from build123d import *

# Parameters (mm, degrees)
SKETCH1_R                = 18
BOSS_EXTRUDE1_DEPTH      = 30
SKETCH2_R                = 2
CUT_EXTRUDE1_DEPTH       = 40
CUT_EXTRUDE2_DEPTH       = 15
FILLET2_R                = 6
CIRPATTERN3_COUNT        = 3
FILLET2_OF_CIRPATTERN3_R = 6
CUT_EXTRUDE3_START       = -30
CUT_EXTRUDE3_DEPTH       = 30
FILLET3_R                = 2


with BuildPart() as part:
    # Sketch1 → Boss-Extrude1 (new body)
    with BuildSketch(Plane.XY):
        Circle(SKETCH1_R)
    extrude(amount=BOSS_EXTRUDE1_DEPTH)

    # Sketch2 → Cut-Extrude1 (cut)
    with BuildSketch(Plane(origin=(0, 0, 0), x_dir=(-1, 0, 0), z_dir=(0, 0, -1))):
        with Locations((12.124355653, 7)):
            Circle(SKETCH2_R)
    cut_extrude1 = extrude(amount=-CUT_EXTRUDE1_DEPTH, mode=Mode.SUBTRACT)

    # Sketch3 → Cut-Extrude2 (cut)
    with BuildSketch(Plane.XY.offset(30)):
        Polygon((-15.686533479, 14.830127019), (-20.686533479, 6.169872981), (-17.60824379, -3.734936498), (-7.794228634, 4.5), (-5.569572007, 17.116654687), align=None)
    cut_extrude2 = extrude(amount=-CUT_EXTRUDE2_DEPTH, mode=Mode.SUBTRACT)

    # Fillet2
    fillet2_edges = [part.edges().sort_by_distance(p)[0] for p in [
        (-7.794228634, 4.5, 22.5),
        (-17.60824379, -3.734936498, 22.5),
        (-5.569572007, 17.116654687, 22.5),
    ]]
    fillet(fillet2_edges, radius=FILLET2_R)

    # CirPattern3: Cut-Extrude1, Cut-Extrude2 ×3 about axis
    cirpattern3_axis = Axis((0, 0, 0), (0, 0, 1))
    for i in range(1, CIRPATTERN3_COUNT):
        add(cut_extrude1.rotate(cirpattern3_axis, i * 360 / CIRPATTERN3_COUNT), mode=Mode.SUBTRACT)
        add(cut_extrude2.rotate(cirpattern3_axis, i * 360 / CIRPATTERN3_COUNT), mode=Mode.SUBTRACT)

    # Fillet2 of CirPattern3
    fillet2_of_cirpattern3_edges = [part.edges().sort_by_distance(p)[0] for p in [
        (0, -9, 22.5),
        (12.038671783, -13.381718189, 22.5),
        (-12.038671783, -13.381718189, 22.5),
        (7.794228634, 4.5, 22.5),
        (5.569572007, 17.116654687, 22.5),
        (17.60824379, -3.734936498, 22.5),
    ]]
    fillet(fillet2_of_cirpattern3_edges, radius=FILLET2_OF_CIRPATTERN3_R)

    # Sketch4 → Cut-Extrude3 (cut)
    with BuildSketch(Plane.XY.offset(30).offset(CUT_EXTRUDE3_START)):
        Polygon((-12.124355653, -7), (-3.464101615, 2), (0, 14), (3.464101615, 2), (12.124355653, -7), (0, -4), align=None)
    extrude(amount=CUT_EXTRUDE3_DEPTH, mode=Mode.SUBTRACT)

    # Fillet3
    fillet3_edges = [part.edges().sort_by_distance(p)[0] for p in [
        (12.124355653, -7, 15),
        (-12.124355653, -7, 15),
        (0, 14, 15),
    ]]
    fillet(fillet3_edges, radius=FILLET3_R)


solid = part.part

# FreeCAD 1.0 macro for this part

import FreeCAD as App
import Part
import Sketcher
from FreeCAD import Vector
Q = App.Units.Quantity


def edges_at(feature, points):
    """Names of the edges that pass closest to the given points."""
    edges = feature.Shape.Edges
    near = lambda p: min(range(len(edges)), key=lambda i: edges[i].distToShape(Part.Vertex(*p))[0])
    return sorted({f"Edge{near(p) + 1}" for p in points})

doc = App.newDocument("Part")
body = doc.addObject("PartDesign::Body", "Body")

# Sketch on XY plane
sketch1 = body.newObject("Sketcher::SketchObject", "Sketch")
sketch1.AttachmentSupport = (doc.getObject("XY_Plane"), [""])
sketch1.MapMode = "FlatFace"
sketch1.addGeometry(Part.Circle(Vector(0, 0, 0), Vector(0, 0, 1), 18), False)
sketch1.addConstraint(Sketcher.Constraint("Coincident", 0, 3, -1, 1))
sketch1.addConstraint(Sketcher.Constraint("Diameter", 0, Q("36 mm")))
pad1 = body.newObject("PartDesign::Pad", "Pad")
pad1.Profile = sketch1
pad1.Length = 30

# Sketch on XY plane
sketch2 = body.newObject("Sketcher::SketchObject", "Sketch001")
sketch2.AttachmentSupport = (doc.getObject("XY_Plane"), [""])
sketch2.MapMode = "FlatFace"
sketch2.addGeometry(Part.Circle(Vector(-12.1, 7, 0), Vector(0, 0, 1), 2), False)
sketch2.addConstraint(Sketcher.Constraint("Diameter", 0, Q("4 mm")))
sketch2.addConstraint(Sketcher.Constraint("DistanceY", -1, 1, 0, 3, Q("7 mm")))
sketch2.addConstraint(Sketcher.Constraint("DistanceX", 0, 3, -1, 1, Q("12.124356 mm")))
pocket1 = body.newObject("PartDesign::Pocket", "Pocket")
pocket1.Profile = sketch2
pocket1.Length = 40
pocket1.Reversed = True

# Sketch on XY plane
sketch3 = body.newObject("Sketcher::SketchObject", "Sketch002")
sketch3.AttachmentSupport = (doc.getObject("XY_Plane"), [""])
sketch3.MapMode = "FlatFace"
sketch3.AttachmentOffset = App.Placement(Vector(0, 0, 30), App.Rotation())
sketch3.addGeometry(Part.LineSegment(Vector(-16, 15, 0), Vector(-21, 6, 0)), False)
sketch3.addGeometry(Part.LineSegment(Vector(-21, 6, 0), Vector(-18, -4, 0)), False)
sketch3.addGeometry(Part.LineSegment(Vector(-18, -4, 0), Vector(-8, 4, 0)), False)
sketch3.addGeometry(Part.LineSegment(Vector(-8, 4, 0), Vector(-6, 17, 0)), False)
sketch3.addGeometry(Part.LineSegment(Vector(-6, 17, 0), Vector(-16, 15, 0)), False)
sketch3.addConstraint(Sketcher.Constraint("Coincident", 0, 2, 1, 1))
sketch3.addConstraint(Sketcher.Constraint("Coincident", 1, 2, 2, 1))
sketch3.addConstraint(Sketcher.Constraint("Coincident", 2, 2, 3, 1))
sketch3.addConstraint(Sketcher.Constraint("Coincident", 3, 2, 4, 1))
sketch3.addConstraint(Sketcher.Constraint("Coincident", 4, 2, 0, 1))
sketch3.addConstraint(Sketcher.Constraint("Equal", 2, 3))
sketch3.addConstraint(Sketcher.Constraint("Equal", 1, 4))
sketch3.addConstraint(Sketcher.Constraint("Angle", 0, Q("-120 deg")))
sketch3.addConstraint(Sketcher.Constraint("Angle", 2, Q("40 deg")))
sketch3.addConstraint(Sketcher.Constraint("Angle", 3, Q("80 deg")))
sketch3.addConstraint(Sketcher.Constraint("Distance", 0, Q("10 mm")))
sketch3.addConstraint(Sketcher.Constraint("DistanceY", -1, 1, 2, 2, Q("4.5 mm")))
sketch3.addConstraint(Sketcher.Constraint("Distance", 1, Q("10.372132 mm")))
sketch3.addConstraint(Sketcher.Constraint("DistanceX", 2, 2, -1, 1, Q("7.794229 mm")))
sketch3.addConstraint(Sketcher.Constraint("DistanceX", 0, 2, 1, 2, Q("3.07829 mm")))
pocket2 = body.newObject("PartDesign::Pocket", "Pocket001")
pocket2.Profile = sketch3
pocket2.Length = 15
doc.recompute()

fillet = body.newObject("PartDesign::Fillet", "Fillet")
fillet.Base = (pocket2, edges_at(pocket2, [(-7.794, 4.5, 22.5), (-17.608, -3.735, 22.5), (-5.57, 17.117, 22.5)]))
fillet.Radius = 6
doc.recompute()

polarpattern = body.newObject("PartDesign::PolarPattern", "PolarPattern")
polarpattern.Originals = [pocket1, pocket2]
polarpattern.Axis = (doc.getObject("Z_Axis"), [""])
polarpattern.Angle = 360
polarpattern.Occurrences = 3
body.Tip = polarpattern
doc.recompute()

fillet2 = body.newObject("PartDesign::Fillet", "Fillet001")
fillet2.Base = (polarpattern, edges_at(polarpattern, [
    (0, -9, 22.5),
    (12.039, -13.382, 22.5),
    (-12.039, -13.382, 22.5),
    (7.794, 4.5, 22.5),
    (5.57, 17.117, 22.5),
    (17.608, -3.735, 22.5),
]))
fillet2.Radius = 6

# Sketch on XY plane
sketch4 = body.newObject("Sketcher::SketchObject", "Sketch003")
sketch4.AttachmentSupport = (doc.getObject("XY_Plane"), [""])
sketch4.MapMode = "FlatFace"
sketch4.addGeometry(Part.LineSegment(Vector(-3, 2, 0), Vector(-12, -7, 0)), False)
sketch4.addGeometry(Part.LineSegment(Vector(-12, -7, 0), Vector(0, -4, 0)), False)
sketch4.addGeometry(Part.LineSegment(Vector(0, -4, 0), Vector(12, -7, 0)), False)
sketch4.addGeometry(Part.LineSegment(Vector(12, -7, 0), Vector(3, 2, 0)), False)
sketch4.addGeometry(Part.LineSegment(Vector(3, 2, 0), Vector(0, 14, 0)), False)
sketch4.addGeometry(Part.LineSegment(Vector(0, 14, 0), Vector(-3, 2, 0)), False)
sketch4.addConstraint(Sketcher.Constraint("Coincident", 0, 2, 1, 1))
sketch4.addConstraint(Sketcher.Constraint("Coincident", 1, 2, 2, 1))
sketch4.addConstraint(Sketcher.Constraint("Coincident", 2, 2, 3, 1))
sketch4.addConstraint(Sketcher.Constraint("Coincident", 3, 2, 4, 1))
sketch4.addConstraint(Sketcher.Constraint("Coincident", 4, 2, 5, 1))
sketch4.addConstraint(Sketcher.Constraint("Coincident", 5, 2, 0, 1))
sketch4.addConstraint(Sketcher.Constraint("Symmetric", 0, 2, 2, 2, -2))
sketch4.addConstraint(Sketcher.Constraint("Symmetric", 3, 2, 5, 2, -2))
sketch4.addConstraint(Sketcher.Constraint("PointOnObject", 1, 2, -2))
sketch4.addConstraint(Sketcher.Constraint("PointOnObject", 4, 2, -2))
sketch4.addConstraint(Sketcher.Constraint("Equal", 0, 1))
sketch4.addConstraint(Sketcher.Constraint("Equal", 3, 4))
sketch4.addConstraint(Sketcher.Constraint("DistanceY", 0, 2, -1, 1, Q("7 mm")))
sketch4.addConstraint(Sketcher.Constraint("DistanceY", 1, 2, -1, 1, Q("4 mm")))
sketch4.addConstraint(Sketcher.Constraint("DistanceY", -1, 1, 3, 2, Q("2 mm")))
sketch4.addConstraint(Sketcher.Constraint("DistanceY", -1, 1, 4, 2, Q("14 mm")))
pocket3 = body.newObject("PartDesign::Pocket", "Pocket002")
pocket3.Profile = sketch4
pocket3.Length = 30
pocket3.Reversed = True
doc.recompute()

fillet3 = body.newObject("PartDesign::Fillet", "Fillet002")
fillet3.Base = (pocket3, edges_at(pocket3, [(12.124, -7, 15), (-12.124, -7, 15), (0, 14, 15)]))
fillet3.Radius = 2

doc.recompute()
